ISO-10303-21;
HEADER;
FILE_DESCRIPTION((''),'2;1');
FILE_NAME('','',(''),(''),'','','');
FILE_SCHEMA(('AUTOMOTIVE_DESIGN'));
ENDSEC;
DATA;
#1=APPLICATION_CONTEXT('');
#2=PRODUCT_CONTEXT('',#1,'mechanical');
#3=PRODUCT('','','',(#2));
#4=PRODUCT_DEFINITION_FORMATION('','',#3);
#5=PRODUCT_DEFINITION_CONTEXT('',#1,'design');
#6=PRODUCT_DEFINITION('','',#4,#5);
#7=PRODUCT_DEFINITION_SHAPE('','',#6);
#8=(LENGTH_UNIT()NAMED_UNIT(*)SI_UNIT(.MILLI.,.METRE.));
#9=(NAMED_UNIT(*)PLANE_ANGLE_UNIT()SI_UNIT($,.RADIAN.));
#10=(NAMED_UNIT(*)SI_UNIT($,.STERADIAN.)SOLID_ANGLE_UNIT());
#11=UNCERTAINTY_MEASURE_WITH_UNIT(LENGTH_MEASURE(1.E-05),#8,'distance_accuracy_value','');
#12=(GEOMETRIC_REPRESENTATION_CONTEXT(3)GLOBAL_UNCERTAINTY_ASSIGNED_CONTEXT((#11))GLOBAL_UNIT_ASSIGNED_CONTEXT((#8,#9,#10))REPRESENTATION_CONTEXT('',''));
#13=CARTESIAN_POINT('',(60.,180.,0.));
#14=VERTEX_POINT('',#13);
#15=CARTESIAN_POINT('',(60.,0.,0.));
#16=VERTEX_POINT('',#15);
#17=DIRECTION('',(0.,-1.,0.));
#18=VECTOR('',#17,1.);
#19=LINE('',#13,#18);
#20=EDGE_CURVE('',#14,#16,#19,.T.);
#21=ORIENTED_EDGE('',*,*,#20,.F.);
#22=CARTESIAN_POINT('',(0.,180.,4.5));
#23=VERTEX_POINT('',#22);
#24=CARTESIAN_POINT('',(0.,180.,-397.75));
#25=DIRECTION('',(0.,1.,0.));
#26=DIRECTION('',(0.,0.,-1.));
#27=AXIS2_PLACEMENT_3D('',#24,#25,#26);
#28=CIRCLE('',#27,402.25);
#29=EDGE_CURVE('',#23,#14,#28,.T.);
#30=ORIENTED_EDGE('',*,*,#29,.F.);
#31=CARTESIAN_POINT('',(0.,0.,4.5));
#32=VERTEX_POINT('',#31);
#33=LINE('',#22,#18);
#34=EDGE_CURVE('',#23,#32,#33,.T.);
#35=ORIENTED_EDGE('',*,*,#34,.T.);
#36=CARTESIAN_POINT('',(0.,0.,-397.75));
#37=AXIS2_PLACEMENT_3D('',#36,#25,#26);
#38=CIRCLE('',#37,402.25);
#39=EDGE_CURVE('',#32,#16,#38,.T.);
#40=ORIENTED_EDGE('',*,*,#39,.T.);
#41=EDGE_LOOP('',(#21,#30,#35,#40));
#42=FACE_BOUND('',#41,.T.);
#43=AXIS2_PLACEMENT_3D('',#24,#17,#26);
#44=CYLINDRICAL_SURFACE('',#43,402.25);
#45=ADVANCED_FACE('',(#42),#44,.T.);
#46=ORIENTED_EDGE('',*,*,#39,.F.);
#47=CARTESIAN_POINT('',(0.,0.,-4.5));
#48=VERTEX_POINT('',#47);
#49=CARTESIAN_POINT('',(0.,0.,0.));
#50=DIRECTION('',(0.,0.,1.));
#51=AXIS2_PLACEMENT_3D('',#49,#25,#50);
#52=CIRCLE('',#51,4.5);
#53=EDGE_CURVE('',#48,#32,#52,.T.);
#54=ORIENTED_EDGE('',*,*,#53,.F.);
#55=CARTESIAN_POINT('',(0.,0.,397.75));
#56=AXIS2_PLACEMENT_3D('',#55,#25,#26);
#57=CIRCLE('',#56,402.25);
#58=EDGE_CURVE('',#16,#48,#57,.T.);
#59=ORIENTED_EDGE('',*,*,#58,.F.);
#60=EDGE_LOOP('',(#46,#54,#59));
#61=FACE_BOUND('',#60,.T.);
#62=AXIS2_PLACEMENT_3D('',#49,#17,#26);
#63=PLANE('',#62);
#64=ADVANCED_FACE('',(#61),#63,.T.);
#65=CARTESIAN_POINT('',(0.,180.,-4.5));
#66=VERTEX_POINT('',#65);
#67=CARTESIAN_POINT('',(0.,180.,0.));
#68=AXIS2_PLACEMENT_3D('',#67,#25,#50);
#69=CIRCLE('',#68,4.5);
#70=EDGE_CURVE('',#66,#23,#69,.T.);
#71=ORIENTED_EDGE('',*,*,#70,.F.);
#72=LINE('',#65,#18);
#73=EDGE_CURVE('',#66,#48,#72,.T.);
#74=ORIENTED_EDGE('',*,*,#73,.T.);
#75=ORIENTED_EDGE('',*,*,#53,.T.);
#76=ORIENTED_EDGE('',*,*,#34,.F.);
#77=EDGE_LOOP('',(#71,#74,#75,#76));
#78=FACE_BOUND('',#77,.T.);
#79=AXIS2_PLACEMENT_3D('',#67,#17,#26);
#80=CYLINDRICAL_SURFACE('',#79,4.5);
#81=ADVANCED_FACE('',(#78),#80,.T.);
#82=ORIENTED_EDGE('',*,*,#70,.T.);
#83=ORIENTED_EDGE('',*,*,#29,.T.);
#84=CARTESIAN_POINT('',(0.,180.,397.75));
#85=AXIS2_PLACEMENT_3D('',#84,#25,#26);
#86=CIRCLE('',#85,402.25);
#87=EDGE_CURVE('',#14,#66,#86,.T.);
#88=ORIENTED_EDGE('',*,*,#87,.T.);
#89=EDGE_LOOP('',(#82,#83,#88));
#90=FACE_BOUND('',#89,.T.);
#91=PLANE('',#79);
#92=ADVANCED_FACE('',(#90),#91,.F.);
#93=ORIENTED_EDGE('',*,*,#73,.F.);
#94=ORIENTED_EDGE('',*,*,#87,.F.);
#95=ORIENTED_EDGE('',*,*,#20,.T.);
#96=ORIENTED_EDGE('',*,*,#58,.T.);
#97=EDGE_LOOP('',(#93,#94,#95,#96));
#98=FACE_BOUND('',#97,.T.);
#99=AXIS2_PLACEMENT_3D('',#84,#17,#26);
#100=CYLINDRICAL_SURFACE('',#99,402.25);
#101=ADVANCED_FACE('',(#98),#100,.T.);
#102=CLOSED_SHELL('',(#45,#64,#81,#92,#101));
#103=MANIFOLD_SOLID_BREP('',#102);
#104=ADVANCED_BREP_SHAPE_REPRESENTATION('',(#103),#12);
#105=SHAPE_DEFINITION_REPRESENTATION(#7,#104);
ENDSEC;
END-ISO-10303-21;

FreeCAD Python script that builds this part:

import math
import FreeCAD as App
import Part
import Sketcher
from FreeCAD import Vector
Q = App.Units.Quantity

doc = App.newDocument("Part")
params = doc.addObject("Spreadsheet::Sheet", "Params")
for row, (alias, value) in enumerate([
    ("sketch1_radius", "4.5 mm"),
    ("sketch1_radius2", "402.25 mm"),
    ("pad1_length", "180 mm"),
], start=1):
    params.set(f"A{row}", alias)
    params.set(f"B{row}", "=" + value)
    params.setAlias(f"B{row}", alias)

body = doc.addObject("PartDesign::Body", "Body")

sketch1 = body.newObject("Sketcher::SketchObject", "Sketch")
sketch1.AttachmentSupport = (doc.getObject("XZ_Plane"), [""])
sketch1.MapMode = "FlatFace"
sketch1.addGeometry([
    Part.ArcOfCircle(Part.Circle(Vector(0, 0, 0), Vector(0, 0, 1), 4.5), math.radians(90), math.radians(270)),
    Part.ArcOfCircle(Part.Circle(Vector(0, -397.75, 0), Vector(0, 0, 1), 402.25), math.radians(81.421693), math.radians(90)),
    Part.ArcOfCircle(Part.Circle(Vector(0, 397.75, 0), Vector(0, 0, 1), 402.25), math.radians(-90), math.radians(-81.421693)),
], False)
sketch1.addConstraint([
    Sketcher.Constraint("Tangent", 0, 1, 1, 2),
    Sketcher.Constraint("Coincident", 1, 1, 2, 2),
    Sketcher.Constraint("Tangent", 2, 1, 0, 2),
    Sketcher.Constraint("Coincident", 0, 3, -1, 1),
    Sketcher.Constraint("Equal", 1, 2),
    Sketcher.Constraint("PointOnObject", 1, 3, -2),
    Sketcher.Constraint("PointOnObject", 2, 3, -2),
    Sketcher.Constraint("Radius", 0, Q("4.5 mm")),
    Sketcher.Constraint("Radius", 1, Q("402.25 mm")),
])
sketch1.setExpression("Constraints[7]", "Params.sketch1_radius")
sketch1.setExpression("Constraints[8]", "Params.sketch1_radius2")
pad1 = body.newObject("PartDesign::Pad", "Pad")
pad1.Profile = sketch1
pad1.setExpression("Length", "Params.pad1_length")
pad1.Reversed = True

doc.recompute()
